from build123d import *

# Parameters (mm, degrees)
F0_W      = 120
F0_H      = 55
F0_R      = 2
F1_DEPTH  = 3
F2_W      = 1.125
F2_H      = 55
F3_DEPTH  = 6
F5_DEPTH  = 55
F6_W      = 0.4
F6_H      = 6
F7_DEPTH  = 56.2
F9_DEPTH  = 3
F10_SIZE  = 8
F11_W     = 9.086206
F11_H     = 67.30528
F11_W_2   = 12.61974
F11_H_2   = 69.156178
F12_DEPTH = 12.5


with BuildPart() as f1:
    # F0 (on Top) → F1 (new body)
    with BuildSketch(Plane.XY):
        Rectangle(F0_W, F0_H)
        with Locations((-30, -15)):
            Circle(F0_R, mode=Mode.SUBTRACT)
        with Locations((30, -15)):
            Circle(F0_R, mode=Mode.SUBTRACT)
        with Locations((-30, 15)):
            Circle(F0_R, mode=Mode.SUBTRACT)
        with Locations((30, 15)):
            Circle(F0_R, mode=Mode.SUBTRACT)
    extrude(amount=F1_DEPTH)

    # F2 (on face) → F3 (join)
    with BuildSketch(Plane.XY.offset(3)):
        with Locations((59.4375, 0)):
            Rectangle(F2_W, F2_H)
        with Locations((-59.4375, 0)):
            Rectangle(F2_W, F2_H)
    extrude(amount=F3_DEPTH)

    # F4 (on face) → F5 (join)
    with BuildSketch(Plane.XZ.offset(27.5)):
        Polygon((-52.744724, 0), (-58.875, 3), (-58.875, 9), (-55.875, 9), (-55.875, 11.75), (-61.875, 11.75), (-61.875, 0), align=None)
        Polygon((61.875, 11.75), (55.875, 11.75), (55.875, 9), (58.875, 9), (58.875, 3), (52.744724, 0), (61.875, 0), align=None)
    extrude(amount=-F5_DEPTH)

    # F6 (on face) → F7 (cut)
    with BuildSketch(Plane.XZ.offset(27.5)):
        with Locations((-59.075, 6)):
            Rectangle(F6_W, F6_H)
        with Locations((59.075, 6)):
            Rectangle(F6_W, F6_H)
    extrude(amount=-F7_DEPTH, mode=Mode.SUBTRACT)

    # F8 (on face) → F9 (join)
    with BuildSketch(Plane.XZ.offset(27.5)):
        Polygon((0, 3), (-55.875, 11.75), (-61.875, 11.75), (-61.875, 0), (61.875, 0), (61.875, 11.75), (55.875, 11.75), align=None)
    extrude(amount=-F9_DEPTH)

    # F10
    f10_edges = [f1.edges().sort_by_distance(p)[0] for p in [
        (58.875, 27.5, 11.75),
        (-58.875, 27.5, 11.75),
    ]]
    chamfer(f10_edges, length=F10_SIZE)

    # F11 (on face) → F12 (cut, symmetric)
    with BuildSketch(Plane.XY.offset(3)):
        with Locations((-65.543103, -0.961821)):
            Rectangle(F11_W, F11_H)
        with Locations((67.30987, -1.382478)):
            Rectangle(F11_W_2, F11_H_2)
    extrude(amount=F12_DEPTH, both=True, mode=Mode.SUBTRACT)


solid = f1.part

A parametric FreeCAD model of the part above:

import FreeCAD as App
import Part
import Sketcher

V = App.Vector
Q = App.Units.Quantity


def edges_at(feature, points):
    """Names of the edges that pass closest to the given points."""
    edges = feature.Shape.Edges
    near = lambda p: min(range(len(edges)), key=lambda i: edges[i].distToShape(Part.Vertex(*p))[0])
    return sorted({f"Edge{near(p) + 1}" for p in points})

doc = App.newDocument("Part")
params = doc.addObject("Spreadsheet::Sheet", "Params")
for row, (alias, value) in enumerate([
    ("sketch1_diameter", "4 mm"),
    ("sketch1_width", "120 mm"),
    ("sketch1_height", "55 mm"),
    ("pad1_length", "3 mm"),
    ("sketch2_height", "55 mm"),
    ("pad2_length", "6 mm"),
    ("sketch3_width", "3 mm"),
    ("sketch3_width2", "6 mm"),
    ("sketch3_height", "2.75 mm"),
    ("pad3_length", "55 mm"),
    ("sketch4_height", "6 mm"),
    ("sketch4_width", "0.4 mm"),
    ("pocket1_length", "56.2 mm"),
    ("sketch5_width", "6 mm"),
    ("sketch5_width2", "123.75 mm"),
    ("sketch5_height", "11.75 mm"),
    ("pad4_length", "3 mm"),
    ("chamfer_size", "8 mm"),
    ("pocket2_length", "25 mm"),
], start=1):
    params.set(f"A{row}", alias)
    params.set(f"B{row}", "=" + value)
    params.setAlias(f"B{row}", alias)

body = doc.addObject("PartDesign::Body", "Body")

sketch1 = doc.addObject("Sketcher::SketchObject", "Sketch")
body.addObject(sketch1)
sketch1.AttachmentSupport = (doc.XY_Plane, [""])
sketch1.MapMode = "FlatFace"
sketch1.addGeometry([
    Part.LineSegment(V(-60, 27.5, 0), V(-60, -27.5, 0)),
    Part.LineSegment(V(-60, -27.5, 0), V(60, -27.5, 0)),
    Part.LineSegment(V(60, -27.5, 0), V(60, 27.5, 0)),
    Part.LineSegment(V(60, 27.5, 0), V(-60, 27.5, 0)),
    Part.Circle(V(-30, -15, 0), V(0, 0, 1), 2),
    Part.Circle(V(30, -15, 0), V(0, 0, 1), 2),
    Part.Circle(V(-30, 15, 0), V(0, 0, 1), 2),
    Part.Circle(V(30, 15, 0), V(0, 0, 1), 2),
], False)
sketch1.addConstraint([
    Sketcher.Constraint("Coincident", 0, 2, 1, 1),
    Sketcher.Constraint("Coincident", 1, 2, 2, 1),
    Sketcher.Constraint("Coincident", 2, 2, 3, 1),
    Sketcher.Constraint("Coincident", 3, 2, 0, 1),
    Sketcher.Constraint("Vertical", 0),
    Sketcher.Constraint("Horizontal", 1),
    Sketcher.Constraint("Vertical", 2),
    Sketcher.Constraint("Horizontal", 3),
    Sketcher.Constraint("Equal", 4, 5),
    Sketcher.Constraint("Equal", 5, 6),
    Sketcher.Constraint("Equal", 6, 7),
    Sketcher.Constraint("Symmetric", 5, 3, 6, 3, -1, 1),
    Sketcher.Constraint("Symmetric", 4, 3, 7, 3, -1, 1),
    Sketcher.Constraint("Symmetric", 0, 2, 2, 2, -1, 1),
    Sketcher.Constraint("Symmetric", 4, 3, 5, 3, -2),
    Sketcher.Constraint("Diameter", 4, Q("4 mm")),
    Sketcher.Constraint("DistanceX", 1, 1, 1, 2, Q("120 mm")),
    Sketcher.Constraint("DistanceY", 0, 2, 0, 1, Q("55 mm")),
    Sketcher.Constraint("DistanceX", 4, 3, -1, 1, Q("30 mm")),
    Sketcher.Constraint("DistanceY", 4, 3, -1, 1, Q("15 mm")),
])
sketch1.setExpression("Constraints[15]", "Params.sketch1_diameter")
sketch1.setExpression("Constraints[16]", "Params.sketch1_width")
sketch1.setExpression("Constraints[17]", "Params.sketch1_height")
pad1 = doc.addObject("PartDesign::Pad", "Pad")
body.addObject(pad1)
pad1.Profile = sketch1
pad1.setExpression("Length", "Params.pad1_length")

sketch2 = doc.addObject("Sketcher::SketchObject", "Sketch001")
body.addObject(sketch2)
sketch2.AttachmentSupport = (doc.XY_Plane, [""])
sketch2.MapMode = "FlatFace"
sketch2.AttachmentOffset = App.Placement(V(0, 0, 3), App.Rotation())
sketch2.addGeometry([
    Part.LineSegment(V(58.9, 27.5, 0), V(58.9, -27.5, 0)),
    Part.LineSegment(V(58.9, -27.5, 0), V(60, -27.5, 0)),
    Part.LineSegment(V(60, -27.5, 0), V(60, 27.5, 0)),
    Part.LineSegment(V(60, 27.5, 0), V(58.9, 27.5, 0)),
    Part.LineSegment(V(-60, 27.5, 0), V(-60, -27.5, 0)),
    Part.LineSegment(V(-60, -27.5, 0), V(-58.9, -27.5, 0)),
    Part.LineSegment(V(-58.9, -27.5, 0), V(-58.9, 27.5, 0)),
    Part.LineSegment(V(-58.9, 27.5, 0), V(-60, 27.5, 0)),
], False)
sketch2.addConstraint([
    Sketcher.Constraint("Coincident", 0, 2, 1, 1),
    Sketcher.Constraint("Coincident", 1, 2, 2, 1),
    Sketcher.Constraint("Coincident", 2, 2, 3, 1),
    Sketcher.Constraint("Coincident", 3, 2, 0, 1),
    Sketcher.Constraint("Coincident", 4, 2, 5, 1),
    Sketcher.Constraint("Coincident", 5, 2, 6, 1),
    Sketcher.Constraint("Coincident", 6, 2, 7, 1),
    Sketcher.Constraint("Coincident", 7, 2, 4, 1),
    Sketcher.Constraint("Vertical", 0),
    Sketcher.Constraint("Horizontal", 1),
    Sketcher.Constraint("Vertical", 2),
    Sketcher.Constraint("Horizontal", 3),
    Sketcher.Constraint("Vertical", 4),
    Sketcher.Constraint("Horizontal", 5),
    Sketcher.Constraint("Vertical", 6),
    Sketcher.Constraint("Horizontal", 7),
    Sketcher.Constraint("Symmetric", 2, 2, 4, 2, -1, 1),
    Sketcher.Constraint("Symmetric", 0, 2, 6, 2, -1, 1),
    Sketcher.Constraint("Horizontal", 1, 2, 4, 2),
    Sketcher.Constraint("DistanceY", 0, 2, 0, 1, Q("55 mm")),
    Sketcher.Constraint("DistanceX", -1, 1, 1, 2, Q("60 mm")),
    Sketcher.Constraint("DistanceX", 1, 1, 1, 2, Q("1.125 mm")),
])
sketch2.setExpression("Constraints[19]", "Params.sketch2_height")
pad2 = doc.addObject("PartDesign::Pad", "Pad001")
body.addObject(pad2)
pad2.Profile = sketch2
pad2.setExpression("Length", "Params.pad2_length")

sketch3 = doc.addObject("Sketcher::SketchObject", "Sketch002")
body.addObject(sketch3)
sketch3.AttachmentSupport = (doc.XZ_Plane, [""])
sketch3.MapMode = "FlatFace"
sketch3.AttachmentOffset = App.Placement(V(0, 0, 27.5), App.Rotation())
sketch3.addGeometry([
    Part.LineSegment(V(-52.7, 0, 0), V(-58.9, 3, 0)),
    Part.LineSegment(V(-58.9, 3, 0), V(-58.9, 9, 0)),
    Part.LineSegment(V(-58.9, 9, 0), V(-55.9, 9, 0)),
    Part.LineSegment(V(-55.9, 9, 0), V(-55.9, 11.8, 0)),
    Part.LineSegment(V(-55.9, 11.8, 0), V(-61.9, 11.8, 0)),
    Part.LineSegment(V(-61.9, 11.8, 0), V(-61.9, 0, 0)),
    Part.LineSegment(V(-61.9, 0, 0), V(-52.7, 0, 0)),
    Part.LineSegment(V(61.9, 11.8, 0), V(55.9, 11.8, 0)),
    Part.LineSegment(V(55.9, 11.8, 0), V(55.9, 9, 0)),
    Part.LineSegment(V(55.9, 9, 0), V(58.9, 9, 0)),
    Part.LineSegment(V(58.9, 9, 0), V(58.9, 3, 0)),
    Part.LineSegment(V(58.9, 3, 0), V(52.7, 0, 0)),
    Part.LineSegment(V(52.7, 0, 0), V(61.9, 0, 0)),
    Part.LineSegment(V(61.9, 0, 0), V(61.9, 11.8, 0)),
], False)
sketch3.addConstraint([
    Sketcher.Constraint("Coincident", 0, 2, 1, 1),
    Sketcher.Constraint("Coincident", 1, 2, 2, 1),
    Sketcher.Constraint("Coincident", 2, 2, 3, 1),
    Sketcher.Constraint("Coincident", 3, 2, 4, 1),
    Sketcher.Constraint("Coincident", 4, 2, 5, 1),
    Sketcher.Constraint("Coincident", 5, 2, 6, 1),
    Sketcher.Constraint("Coincident", 6, 2, 0, 1),
    Sketcher.Constraint("Coincident", 7, 2, 8, 1),
    Sketcher.Constraint("Coincident", 8, 2, 9, 1),
    Sketcher.Constraint("Coincident", 9, 2, 10, 1),
    Sketcher.Constraint("Coincident", 10, 2, 11, 1),
    Sketcher.Constraint("Coincident", 11, 2, 12, 1),
    Sketcher.Constraint("Coincident", 12, 2, 13, 1),
    Sketcher.Constraint("Coincident", 13, 2, 7, 1),
    Sketcher.Constraint("Vertical", 1),
    Sketcher.Constraint("Horizontal", 2),
    Sketcher.Constraint("Vertical", 3),
    Sketcher.Constraint("Horizontal", 4),
    Sketcher.Constraint("Vertical", 5),
    Sketcher.Constraint("Horizontal", 6),
    Sketcher.Constraint("Horizontal", 7),
    Sketcher.Constraint("Vertical", 8),
    Sketcher.Constraint("Horizontal", 9),
    Sketcher.Constraint("Vertical", 10),
    Sketcher.Constraint("Horizontal", 12),
    Sketcher.Constraint("Vertical", 13),
    Sketcher.Constraint("Symmetric", 6, 2, 11, 2, -1, 1),
    Sketcher.Constraint("Symmetric", 3, 2, 7, 2, -2),
    Sketcher.Constraint("Symmetric", 1, 2, 9, 2, -2),
    Sketcher.Constraint("Symmetric", 5, 2, 12, 2, -2),
    Sketcher.Constraint("Horizontal", 0, 2, 10, 2),
    Sketcher.Constraint("Equal", 7, 1),
    Sketcher.Constraint("DistanceX", 2, 1, 2, 2, Q("3 mm")),
    Sketcher.Constraint("DistanceX", 4, 2, 4, 1, Q("6 mm")),
    Sketcher.Constraint("DistanceY", -1, 1, 0, 2, Q("3 mm")),
    Sketcher.Constraint("DistanceY", 3, 1, 3, 2, Q("2.75 mm")),
    Sketcher.Constraint("DistanceX", 3, 2, 7, 2, Q("111.75 mm")),
    Sketcher.Constraint("DistanceX", 6, 1, 6, 2, Q("9.130276 mm")),
])
sketch3.setExpression("Constraints[32]", "Params.sketch3_width")
sketch3.setExpression("Constraints[33]", "Params.sketch3_width2")
sketch3.setExpression("Constraints[35]", "Params.sketch3_height")
pad3 = doc.addObject("PartDesign::Pad", "Pad002")
body.addObject(pad3)
pad3.Profile = sketch3
pad3.setExpression("Length", "Params.pad3_length")
pad3.Reversed = True

sketch4 = doc.addObject("Sketcher::SketchObject", "Sketch003")
body.addObject(sketch4)
sketch4.AttachmentSupport = (doc.XZ_Plane, [""])
sketch4.MapMode = "FlatFace"
sketch4.AttachmentOffset = App.Placement(V(0, 0, 27.5), App.Rotation())
sketch4.addGeometry([
    Part.LineSegment(V(-59.27, 9, 0), V(-59.27, 3, 0)),
    Part.LineSegment(V(-59.27, 3, 0), V(-58.88, 3, 0)),
    Part.LineSegment(V(-58.88, 3, 0), V(-58.88, 9, 0)),
    Part.LineSegment(V(-58.88, 9, 0), V(-59.27, 9, 0)),
    Part.LineSegment(V(58.88, 9, 0), V(58.88, 3, 0)),
    Part.LineSegment(V(58.88, 3, 0), V(59.27, 3, 0)),
    Part.LineSegment(V(59.27, 3, 0), V(59.27, 9, 0)),
    Part.LineSegment(V(59.27, 9, 0), V(58.88, 9, 0)),
], False)
sketch4.addConstraint([
    Sketcher.Constraint("Coincident", 0, 2, 1, 1),
    Sketcher.Constraint("Coincident", 1, 2, 2, 1),
    Sketcher.Constraint("Coincident", 2, 2, 3, 1),
    Sketcher.Constraint("Coincident", 3, 2, 0, 1),
    Sketcher.Constraint("Coincident", 4, 2, 5, 1),
    Sketcher.Constraint("Coincident", 5, 2, 6, 1),
    Sketcher.Constraint("Coincident", 6, 2, 7, 1),
    Sketcher.Constraint("Coincident", 7, 2, 4, 1),
    Sketcher.Constraint("Vertical", 0),
    Sketcher.Constraint("Horizontal", 1),
    Sketcher.Constraint("Vertical", 2),
    Sketcher.Constraint("Horizontal", 3),
    Sketcher.Constraint("Vertical", 4),
    Sketcher.Constraint("Horizontal", 5),
    Sketcher.Constraint("Vertical", 6),
    Sketcher.Constraint("Horizontal", 7),
    Sketcher.Constraint("Symmetric", 1, 2, 4, 2, -2),
    Sketcher.Constraint("Symmetric", 3, 2, 6, 2, -2),
    Sketcher.Constraint("DistanceY", 0, 2, 0, 1, Q("6 mm")),
    Sketcher.Constraint("DistanceX", 1, 1, 1, 2, Q("0.4 mm")),
    Sketcher.Constraint("DistanceY", -1, 1, 0, 2, Q("3 mm")),
    Sketcher.Constraint("DistanceX", 1, 2, 4, 2, Q("117.75 mm")),
])
sketch4.setExpression("Constraints[18]", "Params.sketch4_height")
sketch4.setExpression("Constraints[19]", "Params.sketch4_width")
pocket1 = doc.addObject("PartDesign::Pocket", "Pocket")
body.addObject(pocket1)
pocket1.Profile = sketch4
pocket1.setExpression("Length", "Params.pocket1_length")

sketch5 = doc.addObject("Sketcher::SketchObject", "Sketch004")
body.addObject(sketch5)
sketch5.AttachmentSupport = (doc.XZ_Plane, [""])
sketch5.MapMode = "FlatFace"
sketch5.AttachmentOffset = App.Placement(V(0, 0, 27.5), App.Rotation())
sketch5.addGeometry([
    Part.LineSegment(V(0, 3, 0), V(-56, 12, 0)),
    Part.LineSegment(V(-56, 12, 0), V(-62, 12, 0)),
    Part.LineSegment(V(-62, 12, 0), V(-62, 0, 0)),
    Part.LineSegment(V(-62, 0, 0), V(62, 0, 0)),
    Part.LineSegment(V(62, 0, 0), V(62, 12, 0)),
    Part.LineSegment(V(62, 12, 0), V(56, 12, 0)),
    Part.LineSegment(V(56, 12, 0), V(0, 3, 0)),
], False)
sketch5.addConstraint([
    Sketcher.Constraint("Coincident", 0, 2, 1, 1),
    Sketcher.Constraint("Coincident", 1, 2, 2, 1),
    Sketcher.Constraint("Coincident", 2, 2, 3, 1),
    Sketcher.Constraint("Coincident", 3, 2, 4, 1),
    Sketcher.Constraint("Coincident", 4, 2, 5, 1),
    Sketcher.Constraint("Coincident", 5, 2, 6, 1),
    Sketcher.Constraint("Coincident", 6, 2, 0, 1),
    Sketcher.Constraint("Horizontal", 1),
    Sketcher.Constraint("Vertical", 2),
    Sketcher.Constraint("Horizontal", 3),
    Sketcher.Constraint("Vertical", 4),
    Sketcher.Constraint("Horizontal", 5),
    Sketcher.Constraint("Symmetric", 2, 2, 3, 2, -1, 1),
    Sketcher.Constraint("Symmetric", 0, 2, 5, 2, -2),
    Sketcher.Constraint("PointOnObject", 6, 2, -2),
    Sketcher.Constraint("DistanceX", 1, 2, 1, 1, Q("6 mm")),
    Sketcher.Constraint("DistanceY", -1, 1, 6, 2, Q("3 mm")),
    Sketcher.Constraint("DistanceX", 3, 1, 3, 2, Q("123.75 mm")),
    Sketcher.Constraint("DistanceY", 2, 2, 2, 1, Q("11.75 mm")),
])
sketch5.setExpression("Constraints[15]", "Params.sketch5_width")
sketch5.setExpression("Constraints[17]", "Params.sketch5_width2")
sketch5.setExpression("Constraints[18]", "Params.sketch5_height")
pad4 = doc.addObject("PartDesign::Pad", "Pad003")
body.addObject(pad4)
pad4.Profile = sketch5
pad4.setExpression("Length", "Params.pad4_length")
pad4.Reversed = True
doc.recompute()

chamfer = doc.addObject("PartDesign::Chamfer", "Chamfer")
body.addObject(chamfer)
chamfer.Base = (pad4, edges_at(pad4, [(58.875, 27.5, 11.75), (-58.875, 27.5, 11.75)]))
chamfer.setExpression("Size", "Params.chamfer_size")

sketch6 = doc.addObject("Sketcher::SketchObject", "Sketch005")
body.addObject(sketch6)
sketch6.AttachmentSupport = (doc.XY_Plane, [""])
sketch6.MapMode = "FlatFace"
sketch6.AttachmentOffset = App.Placement(V(0, 0, 3), App.Rotation())
sketch6.addGeometry([
    Part.LineSegment(V(-70, 33, 0), V(-70, -35, 0)),
    Part.LineSegment(V(-70, -35, 0), V(-61, -35, 0)),
    Part.LineSegment(V(-61, -35, 0), V(-61, 33, 0)),
    Part.LineSegment(V(-61, 33, 0), V(-70, 33, 0)),
    Part.LineSegment(V(61, 33, 0), V(61, -36, 0)),
    Part.LineSegment(V(61, -36, 0), V(74, -36, 0)),
    Part.LineSegment(V(74, -36, 0), V(74, 33, 0)),
    Part.LineSegment(V(74, 33, 0), V(61, 33, 0)),
], False)
sketch6.addConstraint([
    Sketcher.Constraint("Coincident", 0, 2, 1, 1),
    Sketcher.Constraint("Coincident", 1, 2, 2, 1),
    Sketcher.Constraint("Coincident", 2, 2, 3, 1),
    Sketcher.Constraint("Coincident", 3, 2, 0, 1),
    Sketcher.Constraint("Coincident", 4, 2, 5, 1),
    Sketcher.Constraint("Coincident", 5, 2, 6, 1),
    Sketcher.Constraint("Coincident", 6, 2, 7, 1),
    Sketcher.Constraint("Coincident", 7, 2, 4, 1),
    Sketcher.Constraint("Vertical", 0),
    Sketcher.Constraint("Horizontal", 1),
    Sketcher.Constraint("Vertical", 2),
    Sketcher.Constraint("Horizontal", 3),
    Sketcher.Constraint("Vertical", 4),
    Sketcher.Constraint("Horizontal", 5),
    Sketcher.Constraint("Vertical", 6),
    Sketcher.Constraint("Horizontal", 7),
    Sketcher.Constraint("DistanceX", 1, 2, -1, 1, Q("61 mm")),
    Sketcher.Constraint("DistanceX", -1, 1, 4, 2, Q("61 mm")),
    Sketcher.Constraint("DistanceX", 5, 1, 5, 2, Q("12.61974 mm")),
    Sketcher.Constraint("DistanceY", 0, 2, 0, 1, Q("67.30528 mm")),
    Sketcher.Constraint("DistanceX", 1, 1, 1, 2, Q("9.086206 mm")),
    Sketcher.Constraint("DistanceY", 4, 2, 4, 1, Q("69.156178 mm")),
    Sketcher.Constraint("DistanceY", 0, 2, -1, 1, Q("34.614461 mm")),
    Sketcher.Constraint("DistanceY", -1, 1, 6, 2, Q("33.195611 mm")),
])
pocket2 = doc.addObject("PartDesign::Pocket", "Pocket001")
body.addObject(pocket2)
pocket2.Profile = sketch6
pocket2.setExpression("Length", "Params.pocket2_length")
pocket2.Midplane = True

doc.recompute()
